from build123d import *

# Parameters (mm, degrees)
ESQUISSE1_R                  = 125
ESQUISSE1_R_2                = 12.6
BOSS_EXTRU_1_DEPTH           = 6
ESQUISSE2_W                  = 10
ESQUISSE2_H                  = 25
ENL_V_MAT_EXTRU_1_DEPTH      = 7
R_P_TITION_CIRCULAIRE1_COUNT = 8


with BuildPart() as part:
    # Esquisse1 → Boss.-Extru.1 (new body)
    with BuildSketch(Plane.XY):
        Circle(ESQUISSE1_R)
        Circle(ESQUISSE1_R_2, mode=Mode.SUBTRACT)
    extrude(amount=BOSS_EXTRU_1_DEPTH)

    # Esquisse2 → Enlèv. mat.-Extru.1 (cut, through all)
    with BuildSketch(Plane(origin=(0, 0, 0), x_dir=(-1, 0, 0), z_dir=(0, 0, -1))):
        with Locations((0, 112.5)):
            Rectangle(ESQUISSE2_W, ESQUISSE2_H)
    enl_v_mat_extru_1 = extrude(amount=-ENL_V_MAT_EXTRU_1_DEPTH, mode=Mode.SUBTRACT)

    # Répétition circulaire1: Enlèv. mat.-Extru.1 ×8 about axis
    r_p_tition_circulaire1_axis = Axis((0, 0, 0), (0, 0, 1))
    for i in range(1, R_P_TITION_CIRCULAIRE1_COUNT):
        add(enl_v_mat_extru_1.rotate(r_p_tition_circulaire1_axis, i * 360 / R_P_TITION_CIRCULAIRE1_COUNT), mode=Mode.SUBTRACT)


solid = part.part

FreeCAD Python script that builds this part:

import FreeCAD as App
import Part
import Sketcher

V = App.Vector
Q = App.Units.Quantity


def add_polygon(sketch, points):
    """Adds a closed chain of lines whose ends are joined by coincident constraints."""
    first, n = sketch.GeometryCount, len(points)
    for a, b in zip(points, points[1:] + points[:1]):
        sketch.addGeometry(Part.LineSegment(App.Vector(*a, 0), App.Vector(*b, 0)), False)
    for i in range(n):
        sketch.addConstraint(Sketcher.Constraint("Coincident", first + i, 2, first + (i + 1) % n, 1))

doc = App.newDocument("Part")
body = doc.addObject("PartDesign::Body", "Body")

# Sketch on XY plane
sketch1 = body.newObject("Sketcher::SketchObject", "Sketch")
sketch1.AttachmentSupport = (doc.getObject("XY_Plane"), [""])
sketch1.MapMode = "FlatFace"
sketch1.addGeometry(Part.Circle(V(0, 0, 0), V(0, 0, 1), 125), False)
sketch1.addGeometry(Part.Circle(V(0, 0, 0), V(0, 0, 1), 12.6), False)
sketch1.addConstraint(Sketcher.Constraint("Coincident", 0, 3, -1, 1))
sketch1.addConstraint(Sketcher.Constraint("Coincident", 1, 3, -1, 1))
sketch1.addConstraint(Sketcher.Constraint("Diameter", 0, Q("250 mm")))
sketch1.addConstraint(Sketcher.Constraint("Diameter", 1, Q("25.2 mm")))
pad1 = body.newObject("PartDesign::Pad", "Pad")
pad1.Profile = sketch1
pad1.Length = 6

# Sketch on XY plane
sketch2 = body.newObject("Sketcher::SketchObject", "Sketch001")
sketch2.AttachmentSupport = (doc.getObject("XY_Plane"), [""])
sketch2.MapMode = "FlatFace"
add_polygon(sketch2, [(5, 125), (5, 100), (-5, 100), (-5, 125)])  # lines 0-3
sketch2.addConstraint(Sketcher.Constraint("Vertical", 0))
sketch2.addConstraint(Sketcher.Constraint("Horizontal", 1))
sketch2.addConstraint(Sketcher.Constraint("Vertical", 2))
sketch2.addConstraint(Sketcher.Constraint("Horizontal", 3))
sketch2.addConstraint(Sketcher.Constraint("DistanceX", 1, 2, 1, 1, Q("10 mm")))
sketch2.addConstraint(Sketcher.Constraint("DistanceY", 0, 2, 0, 1, Q("25 mm")))
sketch2.addConstraint(Sketcher.Constraint("DistanceX", -1, 1, 0, 2, Q("5 mm")))
sketch2.addConstraint(Sketcher.Constraint("DistanceY", -1, 1, 0, 2, Q("100 mm")))
pocket1 = body.newObject("PartDesign::Pocket", "Pocket")
pocket1.Profile = sketch2
pocket1.Type = "ThroughAll"
pocket1.Reversed = True
doc.recompute()

polarpattern = body.newObject("PartDesign::PolarPattern", "PolarPattern")
polarpattern.Originals = [pocket1]
polarpattern.Axis = (doc.getObject("Z_Axis"), [""])
polarpattern.Angle = 360
polarpattern.Occurrences = 8
body.Tip = polarpattern

doc.recompute()
